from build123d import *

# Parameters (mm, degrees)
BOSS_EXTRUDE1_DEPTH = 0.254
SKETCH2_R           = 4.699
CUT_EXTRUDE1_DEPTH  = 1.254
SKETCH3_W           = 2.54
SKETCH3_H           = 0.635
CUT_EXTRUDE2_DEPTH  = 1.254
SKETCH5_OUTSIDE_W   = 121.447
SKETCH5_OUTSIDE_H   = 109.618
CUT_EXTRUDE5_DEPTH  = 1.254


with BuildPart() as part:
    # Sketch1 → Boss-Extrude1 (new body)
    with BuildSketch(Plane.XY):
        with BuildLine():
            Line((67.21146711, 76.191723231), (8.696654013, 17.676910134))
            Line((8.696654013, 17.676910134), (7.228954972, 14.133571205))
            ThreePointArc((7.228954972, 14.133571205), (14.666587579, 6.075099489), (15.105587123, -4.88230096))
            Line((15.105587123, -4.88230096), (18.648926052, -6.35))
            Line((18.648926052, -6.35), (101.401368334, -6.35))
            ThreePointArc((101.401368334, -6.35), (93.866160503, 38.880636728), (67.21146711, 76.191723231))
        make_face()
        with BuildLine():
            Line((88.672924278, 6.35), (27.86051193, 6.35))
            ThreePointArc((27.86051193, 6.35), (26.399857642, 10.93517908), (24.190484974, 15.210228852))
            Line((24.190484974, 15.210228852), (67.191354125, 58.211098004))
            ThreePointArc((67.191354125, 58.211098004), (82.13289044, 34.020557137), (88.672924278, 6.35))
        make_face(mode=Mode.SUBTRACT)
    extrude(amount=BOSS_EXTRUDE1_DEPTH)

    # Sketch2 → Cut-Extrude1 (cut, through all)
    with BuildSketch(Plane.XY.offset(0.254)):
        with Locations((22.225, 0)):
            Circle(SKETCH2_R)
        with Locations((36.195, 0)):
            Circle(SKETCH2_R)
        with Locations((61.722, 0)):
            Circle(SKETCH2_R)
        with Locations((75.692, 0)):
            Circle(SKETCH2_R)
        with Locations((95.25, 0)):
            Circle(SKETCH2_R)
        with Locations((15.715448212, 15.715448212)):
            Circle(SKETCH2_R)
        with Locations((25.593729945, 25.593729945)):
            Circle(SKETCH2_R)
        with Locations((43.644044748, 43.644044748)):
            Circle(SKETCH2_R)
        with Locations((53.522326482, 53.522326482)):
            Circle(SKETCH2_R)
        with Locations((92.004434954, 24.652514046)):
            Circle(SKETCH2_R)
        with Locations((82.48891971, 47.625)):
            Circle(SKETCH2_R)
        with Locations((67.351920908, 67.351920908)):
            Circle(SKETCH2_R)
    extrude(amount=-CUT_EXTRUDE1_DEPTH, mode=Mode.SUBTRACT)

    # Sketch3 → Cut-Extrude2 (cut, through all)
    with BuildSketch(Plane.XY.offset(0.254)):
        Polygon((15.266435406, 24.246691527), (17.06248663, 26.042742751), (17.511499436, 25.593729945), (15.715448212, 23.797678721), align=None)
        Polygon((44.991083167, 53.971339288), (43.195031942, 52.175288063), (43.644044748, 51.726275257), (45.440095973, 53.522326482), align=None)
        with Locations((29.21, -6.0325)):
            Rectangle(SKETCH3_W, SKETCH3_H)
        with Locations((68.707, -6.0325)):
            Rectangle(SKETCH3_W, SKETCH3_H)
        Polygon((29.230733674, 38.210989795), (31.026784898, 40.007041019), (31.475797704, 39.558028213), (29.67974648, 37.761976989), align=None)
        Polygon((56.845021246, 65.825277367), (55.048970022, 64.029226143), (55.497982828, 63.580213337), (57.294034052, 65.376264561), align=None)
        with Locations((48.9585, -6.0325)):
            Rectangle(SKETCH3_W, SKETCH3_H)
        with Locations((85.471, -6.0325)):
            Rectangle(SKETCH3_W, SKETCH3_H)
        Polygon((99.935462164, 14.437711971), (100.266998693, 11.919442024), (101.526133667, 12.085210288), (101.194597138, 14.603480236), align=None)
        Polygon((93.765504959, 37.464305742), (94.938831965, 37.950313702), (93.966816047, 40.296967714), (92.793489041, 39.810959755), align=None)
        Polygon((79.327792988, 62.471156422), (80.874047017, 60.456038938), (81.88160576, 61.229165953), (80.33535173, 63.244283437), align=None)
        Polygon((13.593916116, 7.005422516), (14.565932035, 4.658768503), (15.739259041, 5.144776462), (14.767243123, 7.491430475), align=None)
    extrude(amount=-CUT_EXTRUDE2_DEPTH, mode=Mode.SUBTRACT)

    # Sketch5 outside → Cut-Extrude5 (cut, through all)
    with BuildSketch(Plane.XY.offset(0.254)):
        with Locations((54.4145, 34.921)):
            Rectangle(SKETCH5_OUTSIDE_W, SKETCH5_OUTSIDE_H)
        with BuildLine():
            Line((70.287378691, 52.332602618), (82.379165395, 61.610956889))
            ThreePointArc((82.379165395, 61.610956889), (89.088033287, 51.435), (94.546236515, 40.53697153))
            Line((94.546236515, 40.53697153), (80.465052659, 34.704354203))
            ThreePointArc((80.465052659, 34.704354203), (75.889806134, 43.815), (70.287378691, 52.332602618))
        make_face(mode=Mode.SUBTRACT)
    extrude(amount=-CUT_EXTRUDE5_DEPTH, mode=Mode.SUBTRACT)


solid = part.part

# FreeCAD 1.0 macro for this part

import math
import FreeCAD as App
import Part
import Sketcher

V = App.Vector
Q = App.Units.Quantity


def add_polygon(sketch, points):
    """Adds a closed chain of lines whose ends are joined by coincident constraints."""
    first, n = sketch.GeometryCount, len(points)
    for a, b in zip(points, points[1:] + points[:1]):
        sketch.addGeometry(Part.LineSegment(App.Vector(*a, 0), App.Vector(*b, 0)), False)
    for i in range(n):
        sketch.addConstraint(Sketcher.Constraint("Coincident", first + i, 2, first + (i + 1) % n, 1))

doc = App.newDocument("Part")
body = doc.addObject("PartDesign::Body", "Body")

sketch1 = body.newObject("Sketcher::SketchObject", "Sketch")
sketch1.AttachmentSupport = (doc.getObject("XY_Plane"), [""])
sketch1.MapMode = "FlatFace"
sketch1.addGeometry(Part.LineSegment(V(67.211467, 76.191723, 0), V(8.696654, 17.67691, 0)), False)
sketch1.addGeometry(Part.LineSegment(V(8.696654, 17.67691, 0), V(7.228955, 14.133571, 0)), False)
sketch1.addGeometry(Part.ArcOfCircle(Part.Circle(V(0, 0, 0), V(0, 0, 1), 15.875), math.radians(-17.911434), math.radians(62.911434)), False)
sketch1.addGeometry(Part.LineSegment(V(15.105587, -4.882301, 0), V(18.648926, -6.35, 0)), False)
sketch1.addGeometry(Part.LineSegment(V(18.648926, -6.35, 0), V(101.401368, -6.35, 0)), False)
sketch1.addGeometry(Part.ArcOfCircle(Part.Circle(V(0, 0, 0), V(0, 0, 1), 101.6), math.radians(-3.583322), math.radians(48.583322)), False)
sketch1.addGeometry(Part.ArcOfCircle(Part.Circle(V(0, 0, 0), V(0, 0, 1), 88.9), math.radians(4.096044), math.radians(40.903956)), False)
sketch1.addGeometry(Part.LineSegment(V(88.672924, 6.35, 0), V(27.860512, 6.35, 0)), False)
sketch1.addGeometry(Part.ArcOfCircle(Part.Circle(V(0, 0, 0), V(0, 0, 1), 28.575), math.radians(12.839588), math.radians(32.160412)), False)
sketch1.addGeometry(Part.LineSegment(V(24.190485, 15.210229, 0), V(67.191354, 58.211098, 0)), False)
sketch1.addConstraint(Sketcher.Constraint("Coincident", 0, 2, 1, 1))
sketch1.addConstraint(Sketcher.Constraint("Coincident", 1, 2, 2, 2))
sketch1.addConstraint(Sketcher.Constraint("Coincident", 2, 1, 3, 1))
sketch1.addConstraint(Sketcher.Constraint("Coincident", 3, 2, 4, 1))
sketch1.addConstraint(Sketcher.Constraint("Coincident", 4, 2, 5, 1))
sketch1.addConstraint(Sketcher.Constraint("Coincident", 5, 2, 0, 1))
sketch1.addConstraint(Sketcher.Constraint("Coincident", 6, 1, 7, 1))
sketch1.addConstraint(Sketcher.Constraint("Coincident", 7, 2, 8, 1))
sketch1.addConstraint(Sketcher.Constraint("Coincident", 8, 2, 9, 1))
sketch1.addConstraint(Sketcher.Constraint("Coincident", 9, 2, 6, 2))
sketch1.addConstraint(Sketcher.Constraint("Horizontal", 4))
sketch1.addConstraint(Sketcher.Constraint("Horizontal", 7))
sketch1.addConstraint(Sketcher.Constraint("Coincident", 2, 3, -1, 1))
sketch1.addConstraint(Sketcher.Constraint("Coincident", 5, 3, -1, 1))
sketch1.addConstraint(Sketcher.Constraint("Coincident", 6, 3, -1, 1))
sketch1.addConstraint(Sketcher.Constraint("Coincident", 8, 3, -1, 1))
sketch1.addConstraint(Sketcher.Constraint("Perpendicular", 1, 3))
sketch1.addConstraint(Sketcher.Constraint("Parallel", 0, 9))
sketch1.addConstraint(Sketcher.Constraint("Equal", 1, 3))
sketch1.addConstraint(Sketcher.Constraint("Radius", 5, Q("4 in")))
sketch1.addConstraint(Sketcher.Constraint("Radius", 6, Q("3.5 in")))
sketch1.addConstraint(Sketcher.Constraint("Angle", 0, Q("-135 deg")))
sketch1.addConstraint(Sketcher.Constraint("Radius", 2, Q("0.625 in")))
sketch1.addConstraint(Sketcher.Constraint("Radius", 8, Q("1.125 in")))
sketch1.addConstraint(Sketcher.Constraint("Angle", 1, Q("-112.5 deg")))
sketch1.addConstraint(Sketcher.Constraint("DistanceY", 4, 2, 6, 1, Q("0.5 in")))
sketch1.addConstraint(Sketcher.Constraint("DistanceY", 3, 2, -1, 1, Q("0.25 in")))
sketch1.addConstraint(Sketcher.Constraint("DistanceY", 2, 1, -1, 1, Q("4.882301 mm")))
sketch1.addConstraint(Sketcher.Constraint("DistanceY", -1, 1, 9, 2, Q("58.211098 mm")))
sketch1.addConstraint(Sketcher.Constraint("DistanceX", 5, 2, 4, 2, Q("34.189901 mm")))
pad1 = body.newObject("PartDesign::Pad", "Pad")
pad1.Profile = sketch1
pad1.Length = Q("0.01 in")

sketch2 = body.newObject("Sketcher::SketchObject", "Sketch001")
sketch2.AttachmentSupport = (doc.getObject("XY_Plane"), [""])
sketch2.MapMode = "FlatFace"
sketch2.AttachmentOffset = App.Placement(V(0, 0, 0.01 * 25.4), App.Rotation())
sketch2.addGeometry(Part.Circle(V(22.225, 0, 0), V(0, 0, 1), 4.699), False)
sketch2.addGeometry(Part.Circle(V(36.195, 0, 0), V(0, 0, 1), 4.699), False)
sketch2.addGeometry(Part.Circle(V(61.722, 0, 0), V(0, 0, 1), 4.699), False)
sketch2.addGeometry(Part.Circle(V(75.692, 0, 0), V(0, 0, 1), 4.699), False)
sketch2.addGeometry(Part.Circle(V(95.25, 0, 0), V(0, 0, 1), 4.699), False)
sketch2.addGeometry(Part.Circle(V(15.715448, 15.715448, 0), V(0, 0, 1), 4.699), False)
sketch2.addGeometry(Part.Circle(V(25.59373, 25.59373, 0), V(0, 0, 1), 4.699), False)
sketch2.addGeometry(Part.Circle(V(43.644045, 43.644045, 0), V(0, 0, 1), 4.699), False)
sketch2.addGeometry(Part.Circle(V(53.522326, 53.522326, 0), V(0, 0, 1), 4.699), False)
sketch2.addGeometry(Part.Circle(V(92.004435, 24.652514, 0), V(0, 0, 1), 4.699), False)
sketch2.addGeometry(Part.Circle(V(82.48892, 47.625, 0), V(0, 0, 1), 4.699), False)
sketch2.addGeometry(Part.Circle(V(67.351921, 67.351921, 0), V(0, 0, 1), 4.699), False)
sketch2.addConstraint(Sketcher.Constraint("Equal", 0, 1))
sketch2.addConstraint(Sketcher.Constraint("Equal", 1, 2))
sketch2.addConstraint(Sketcher.Constraint("Equal", 2, 3))
sketch2.addConstraint(Sketcher.Constraint("Equal", 3, 4))
sketch2.addConstraint(Sketcher.Constraint("Equal", 4, 5))
sketch2.addConstraint(Sketcher.Constraint("Equal", 5, 6))
sketch2.addConstraint(Sketcher.Constraint("Equal", 6, 7))
sketch2.addConstraint(Sketcher.Constraint("Equal", 7, 8))
sketch2.addConstraint(Sketcher.Constraint("Equal", 8, 9))
sketch2.addConstraint(Sketcher.Constraint("Equal", 9, 10))
sketch2.addConstraint(Sketcher.Constraint("Equal", 10, 11))
sketch2.addConstraint(Sketcher.Constraint("PointOnObject", 0, 3, -1))
sketch2.addConstraint(Sketcher.Constraint("PointOnObject", 1, 3, -1))
sketch2.addConstraint(Sketcher.Constraint("PointOnObject", 2, 3, -1))
sketch2.addConstraint(Sketcher.Constraint("PointOnObject", 3, 3, -1))
sketch2.addConstraint(Sketcher.Constraint("PointOnObject", 4, 3, -1))
sketch2.addConstraint(Sketcher.Constraint("Diameter", 0, Q("0.37 in")))
sketch2.addConstraint(Sketcher.Constraint("DistanceX", -1, 1, 2, 3, Q("2.43 in")))
sketch2.addConstraint(Sketcher.Constraint("DistanceX", -1, 1, 3, 3, Q("2.98 in")))
sketch2.addConstraint(Sketcher.Constraint("DistanceX", -1, 1, 4, 3, Q("3.75 in")))
sketch2.addConstraint(Sketcher.Constraint("DistanceX", 0, 3, 1, 3, Q("0.55 in")))
sketch2.addConstraint(Sketcher.Constraint("DistanceX", -1, 1, 0, 3, Q("0.875 in")))
sketch2.addConstraint(Sketcher.Constraint("DistanceY", -1, 1, 10, 3, Q("1.875 in")))
sketch2.addConstraint(Sketcher.Constraint("DistanceX", 11, 3, 10, 3, Q("15.136999 mm")))
sketch2.addConstraint(Sketcher.Constraint("DistanceX", -1, 1, 5, 3, Q("15.715448 mm")))
sketch2.addConstraint(Sketcher.Constraint("DistanceY", -1, 1, 5, 3, Q("15.715448 mm")))
sketch2.addConstraint(Sketcher.Constraint("DistanceX", -1, 1, 6, 3, Q("25.59373 mm")))
sketch2.addConstraint(Sketcher.Constraint("DistanceY", -1, 1, 6, 3, Q("25.59373 mm")))
sketch2.addConstraint(Sketcher.Constraint("DistanceX", -1, 1, 10, 3, Q("82.48892 mm")))
sketch2.addConstraint(Sketcher.Constraint("DistanceY", -1, 1, 11, 3, Q("67.351921 mm")))
sketch2.addConstraint(Sketcher.Constraint("DistanceX", 7, 3, 8, 3, Q("9.878282 mm")))
sketch2.addConstraint(Sketcher.Constraint("DistanceY", 7, 3, 8, 3, Q("9.878282 mm")))
sketch2.addConstraint(Sketcher.Constraint("DistanceX", 5, 3, 8, 3, Q("37.806878 mm")))
sketch2.addConstraint(Sketcher.Constraint("DistanceY", 5, 3, 8, 3, Q("37.806878 mm")))
sketch2.addConstraint(Sketcher.Constraint("DistanceX", 8, 3, 9, 3, Q("38.482108 mm")))
sketch2.addConstraint(Sketcher.Constraint("DistanceY", 9, 3, 7, 3, Q("18.991531 mm")))
pocket1 = body.newObject("PartDesign::Pocket", "Pocket")
pocket1.Profile = sketch2
pocket1.Type = "ThroughAll"

sketch3 = body.newObject("Sketcher::SketchObject", "Sketch002")
sketch3.AttachmentSupport = (doc.getObject("XY_Plane"), [""])
sketch3.MapMode = "FlatFace"
sketch3.AttachmentOffset = App.Placement(V(0, 0, 0.01 * 25.4), App.Rotation())
add_polygon(sketch3, [(17.062487, 26.042743), (15.266435, 24.246692), (15.715448, 23.797679), (17.511499, 25.59373)])
add_polygon(sketch3, [(44.991083, 53.971339), (43.195032, 52.175288), (43.644045, 51.726275), (45.440096, 53.522326)])
add_polygon(sketch3, [(27.94, -5.715), (27.94, -6.35), (30.48, -6.35), (30.48, -5.715)])
add_polygon(sketch3, [(67.437, -5.715), (67.437, -6.35), (69.977, -6.35), (69.977, -5.715)])
add_polygon(sketch3, [(31.026785, 40.007041), (29.230734, 38.21099), (29.679746, 37.761977), (31.475798, 39.558028)])
add_polygon(sketch3, [(56.845021, 65.825277), (55.04897, 64.029226), (55.497983, 63.580213), (57.294034, 65.376265)])
add_polygon(sketch3, [(47.6885, -5.715), (47.6885, -6.35), (50.2285, -6.35), (50.2285, -5.715)])
add_polygon(sketch3, [(84.201, -5.715), (84.201, -6.35), (86.741, -6.35), (86.741, -5.715)])
add_polygon(sketch3, [(99.935462, 14.437712), (100.266999, 11.919442), (101.526134, 12.08521), (101.194597, 14.60348)])
add_polygon(sketch3, [(93.765505, 37.464306), (94.938832, 37.950314), (93.966816, 40.296968), (92.793489, 39.81096)])
add_polygon(sketch3, [(79.327793, 62.471156), (80.874047, 60.456039), (81.881606, 61.229166), (80.335352, 63.244283)])
add_polygon(sketch3, [(13.593916, 7.005423), (14.565932, 4.658769), (15.739259, 5.144776), (14.767243, 7.49143)])
sketch3.addConstraint(Sketcher.Constraint("Vertical", 8))
sketch3.addConstraint(Sketcher.Constraint("Horizontal", 9))
sketch3.addConstraint(Sketcher.Constraint("Vertical", 10))
sketch3.addConstraint(Sketcher.Constraint("Horizontal", 11))
sketch3.addConstraint(Sketcher.Constraint("Vertical", 12))
sketch3.addConstraint(Sketcher.Constraint("Horizontal", 13))
sketch3.addConstraint(Sketcher.Constraint("Vertical", 14))
sketch3.addConstraint(Sketcher.Constraint("Horizontal", 15))
sketch3.addConstraint(Sketcher.Constraint("Vertical", 24))
sketch3.addConstraint(Sketcher.Constraint("Horizontal", 25))
sketch3.addConstraint(Sketcher.Constraint("Vertical", 26))
sketch3.addConstraint(Sketcher.Constraint("Horizontal", 27))
sketch3.addConstraint(Sketcher.Constraint("Vertical", 28))
sketch3.addConstraint(Sketcher.Constraint("Horizontal", 29))
sketch3.addConstraint(Sketcher.Constraint("Vertical", 30))
sketch3.addConstraint(Sketcher.Constraint("Horizontal", 31))
sketch3.addConstraint(Sketcher.Constraint("Perpendicular", 0, 1))
sketch3.addConstraint(Sketcher.Constraint("Perpendicular", 1, 2))
sketch3.addConstraint(Sketcher.Constraint("Perpendicular", 2, 3))
sketch3.addConstraint(Sketcher.Constraint("Perpendicular", 3, 4))
sketch3.addConstraint(Sketcher.Constraint("Perpendicular", 4, 5))
sketch3.addConstraint(Sketcher.Constraint("Perpendicular", 5, 6))
sketch3.addConstraint(Sketcher.Constraint("Perpendicular", 6, 7))
sketch3.addConstraint(Sketcher.Constraint("Perpendicular", 7, 16))
sketch3.addConstraint(Sketcher.Constraint("Perpendicular", 16, 17))
sketch3.addConstraint(Sketcher.Constraint("Perpendicular", 17, 18))
sketch3.addConstraint(Sketcher.Constraint("Perpendicular", 18, 19))
sketch3.addConstraint(Sketcher.Constraint("Perpendicular", 19, 20))
sketch3.addConstraint(Sketcher.Constraint("Perpendicular", 20, 21))
sketch3.addConstraint(Sketcher.Constraint("Perpendicular", 21, 22))
sketch3.addConstraint(Sketcher.Constraint("Perpendicular", 22, 23))
sketch3.addConstraint(Sketcher.Constraint("Perpendicular", 32, 33))
sketch3.addConstraint(Sketcher.Constraint("Perpendicular", 33, 34))
sketch3.addConstraint(Sketcher.Constraint("Perpendicular", 34, 35))
sketch3.addConstraint(Sketcher.Constraint("Perpendicular", 36, 37))
sketch3.addConstraint(Sketcher.Constraint("Perpendicular", 37, 38))
sketch3.addConstraint(Sketcher.Constraint("Perpendicular", 38, 39))
sketch3.addConstraint(Sketcher.Constraint("Perpendicular", 40, 41))
sketch3.addConstraint(Sketcher.Constraint("Perpendicular", 41, 42))
sketch3.addConstraint(Sketcher.Constraint("Perpendicular", 42, 43))
sketch3.addConstraint(Sketcher.Constraint("Parallel", 39, 44))
sketch3.addConstraint(Sketcher.Constraint("Perpendicular", 44, 45))
sketch3.addConstraint(Sketcher.Constraint("Perpendicular", 45, 46))
sketch3.addConstraint(Sketcher.Constraint("Perpendicular", 46, 47))
sketch3.addConstraint(Sketcher.Constraint("Horizontal", 9, 2, 12, 2))
sketch3.addConstraint(Sketcher.Constraint("Horizontal", 11, 2, 14, 2))
sketch3.addConstraint(Sketcher.Constraint("Horizontal", 13, 2, 24, 2))
sketch3.addConstraint(Sketcher.Constraint("Horizontal", 15, 2, 26, 2))
sketch3.addConstraint(Sketcher.Constraint("Horizontal", 25, 2, 28, 2))
sketch3.addConstraint(Sketcher.Constraint("Horizontal", 27, 2, 30, 2))
sketch3.addConstraint(Sketcher.Constraint("Equal", 11, 13))
sketch3.addConstraint(Sketcher.Constraint("Equal", 15, 25))
sketch3.addConstraint(Sketcher.Constraint("Equal", 27, 29))
sketch3.addConstraint(Sketcher.Constraint("Equal", 2, 4))
sketch3.addConstraint(Sketcher.Constraint("Equal", 3, 5))
sketch3.addConstraint(Sketcher.Constraint("Equal", 6, 16))
sketch3.addConstraint(Sketcher.Constraint("Equal", 7, 17))
sketch3.addConstraint(Sketcher.Constraint("Equal", 18, 20))
sketch3.addConstraint(Sketcher.Constraint("Equal", 19, 21))
sketch3.addConstraint(Sketcher.Constraint("Equal", 22, 32))
sketch3.addConstraint(Sketcher.Constraint("Equal", 35, 36))
sketch3.addConstraint(Sketcher.Constraint("Equal", 34, 37))
sketch3.addConstraint(Sketcher.Constraint("Equal", 39, 40))
sketch3.addConstraint(Sketcher.Constraint("Equal", 38, 41))
sketch3.addConstraint(Sketcher.Constraint("Equal", 42, 44))
sketch3.addConstraint(Sketcher.Constraint("Equal", 43, 45))
sketch3.addConstraint(Sketcher.Constraint("DistanceX", 9, 1, 9, 2, Q("0.1 in")))
sketch3.addConstraint(Sketcher.Constraint("Angle", 0, Q("-135 deg")))
sketch3.addConstraint(Sketcher.Constraint("Distance", 0, Q("0.1 in")))
sketch3.addConstraint(Sketcher.Constraint("DistanceX", -1, 1, 8, 2, Q("1.1 in")))
sketch3.addConstraint(Sketcher.Constraint("Angle", 32, Q("-82.5 deg")))
sketch3.addConstraint(Sketcher.Constraint("Angle", 36, Q("22.5 deg")))
sketch3.addConstraint(Sketcher.Constraint("Angle", 40, Q("-52.5 deg")))
sketch3.addConstraint(Sketcher.Constraint("Distance", 33, Q("0.05 in")))
sketch3.addConstraint(Sketcher.Constraint("DistanceY", 8, 2, 8, 1, Q("0.025 in")))
sketch3.addConstraint(Sketcher.Constraint("DistanceY", 8, 2, -1, 1, Q("0.25 in")))
sketch3.addConstraint(Sketcher.Constraint("DistanceX", 13, 2, 28, 2, Q("0.56 in")))
sketch3.addConstraint(Sketcher.Constraint("Distance", 1, Q("0.025 in")))
sketch3.addConstraint(Sketcher.Constraint("DistanceX", -1, 1, 12, 2, Q("2.655 in")))
sketch3.addConstraint(Sketcher.Constraint("DistanceX", -1, 1, 24, 2, Q("1.8775 in")))
sketch3.addConstraint(Sketcher.Constraint("DistanceX", -1, 1, 2, 2, Q("17.511499 mm")))
sketch3.addConstraint(Sketcher.Constraint("DistanceX", -1, 1, 32, 2, Q("100.266999 mm")))
sketch3.addConstraint(Sketcher.Constraint("DistanceX", 16, 2, 4, 2, Q("13.964298 mm")))
sketch3.addConstraint(Sketcher.Constraint("DistanceY", 16, 2, 4, 2, Q("13.964298 mm")))
sketch3.addConstraint(Sketcher.Constraint("DistanceX", 0, 2, 16, 2, Q("13.964298 mm")))
sketch3.addConstraint(Sketcher.Constraint("DistanceY", 0, 2, 16, 2, Q("13.964298 mm")))
sketch3.addConstraint(Sketcher.Constraint("DistanceY", 6, 2, 20, 2, Q("10.5069 mm")))
sketch3.addConstraint(Sketcher.Constraint("DistanceX", 7, 2, 21, 2, Q("10.5069 mm")))
sketch3.addConstraint(Sketcher.Constraint("DistanceY", 35, 2, 36, 2, Q("23.512602 mm")))
sketch3.addConstraint(Sketcher.Constraint("DistanceX", 36, 2, 33, 2, Q("6.587302 mm")))
sketch3.addConstraint(Sketcher.Constraint("DistanceY", 37, 2, 41, 2, Q("20.932198 mm")))
sketch3.addConstraint(Sketcher.Constraint("DistanceY", 41, 2, 22, 2, Q("4.147099 mm")))
sketch3.addConstraint(Sketcher.Constraint("DistanceY", 46, 2, 2, 2, Q("18.102299 mm")))
sketch3.addConstraint(Sketcher.Constraint("DistanceY", -1, 1, 0, 2, Q("24.246692 mm")))
sketch3.addConstraint(Sketcher.Constraint("DistanceX", -1, 1, 42, 2, Q("80.335352 mm")))
sketch3.addConstraint(Sketcher.Constraint("DistanceX", -1, 1, 45, 2, Q("15.739259 mm")))
pocket2 = body.newObject("PartDesign::Pocket", "Pocket001")
pocket2.Profile = sketch3
pocket2.Type = "ThroughAll"

sketch4 = body.newObject("Sketcher::SketchObject", "Sketch003")
sketch4.AttachmentSupport = (doc.getObject("XY_Plane"), [""])
sketch4.MapMode = "FlatFace"
sketch4.AttachmentOffset = App.Placement(V(0, 0, 0.01 * 25.4), App.Rotation())
add_polygon(sketch4, [(-6.309, 89.73), (-6.309, -19.888), (115.138, -19.888), (115.138, 89.73)])
sketch4.addGeometry(Part.ArcOfCircle(Part.Circle(V(0, 0, 0), V(0, 0, 1), 87.63), math.radians(23.330403), math.radians(36.669597)), False)
sketch4.addGeometry(Part.LineSegment(V(70.287379, 52.332603, 0), V(82.379165, 61.610957, 0)), False)
sketch4.addGeometry(Part.ArcOfCircle(Part.Circle(V(0, 0, 0), V(0, 0, 1), 102.87), math.radians(23.207373), math.radians(36.792627)), False)
sketch4.addGeometry(Part.LineSegment(V(94.546237, 40.536972, 0), V(80.465053, 34.704354, 0)), False)
sketch4.addConstraint(Sketcher.Constraint("Coincident", 4, 2, 5, 1))
sketch4.addConstraint(Sketcher.Constraint("Coincident", 5, 2, 6, 2))
sketch4.addConstraint(Sketcher.Constraint("Coincident", 6, 1, 7, 1))
sketch4.addConstraint(Sketcher.Constraint("Coincident", 7, 2, 4, 1))
sketch4.addConstraint(Sketcher.Constraint("Vertical", 0))
sketch4.addConstraint(Sketcher.Constraint("Horizontal", 1))
sketch4.addConstraint(Sketcher.Constraint("Vertical", 2))
sketch4.addConstraint(Sketcher.Constraint("Horizontal", 3))
sketch4.addConstraint(Sketcher.Constraint("Coincident", 4, 3, -1, 1))
sketch4.addConstraint(Sketcher.Constraint("Coincident", 6, 3, -1, 1))
sketch4.addConstraint(Sketcher.Constraint("Equal", 5, 7))
sketch4.addConstraint(Sketcher.Constraint("Radius", 4, Q("3.45 in")))
sketch4.addConstraint(Sketcher.Constraint("Radius", 6, Q("4.05 in")))
sketch4.addConstraint(Sketcher.Constraint("Angle", 5, Q("37.5 deg")))
sketch4.addConstraint(Sketcher.Constraint("Angle", 7, Q("-157.5 deg")))
sketch4.addConstraint(Sketcher.Constraint("DistanceX", 1, 1, 1, 2, Q("121.447 mm")))
sketch4.addConstraint(Sketcher.Constraint("DistanceY", 0, 2, 0, 1, Q("109.618 mm")))
sketch4.addConstraint(Sketcher.Constraint("DistanceX", 0, 2, -1, 1, Q("6.309 mm")))
sketch4.addConstraint(Sketcher.Constraint("DistanceY", 0, 2, -1, 1, Q("19.888 mm")))
sketch4.addConstraint(Sketcher.Constraint("DistanceX", -1, 1, 4, 2, Q("70.287379 mm")))
pocket3 = body.newObject("PartDesign::Pocket", "Pocket002")
pocket3.Profile = sketch4
pocket3.Type = "ThroughAll"

doc.recompute()
